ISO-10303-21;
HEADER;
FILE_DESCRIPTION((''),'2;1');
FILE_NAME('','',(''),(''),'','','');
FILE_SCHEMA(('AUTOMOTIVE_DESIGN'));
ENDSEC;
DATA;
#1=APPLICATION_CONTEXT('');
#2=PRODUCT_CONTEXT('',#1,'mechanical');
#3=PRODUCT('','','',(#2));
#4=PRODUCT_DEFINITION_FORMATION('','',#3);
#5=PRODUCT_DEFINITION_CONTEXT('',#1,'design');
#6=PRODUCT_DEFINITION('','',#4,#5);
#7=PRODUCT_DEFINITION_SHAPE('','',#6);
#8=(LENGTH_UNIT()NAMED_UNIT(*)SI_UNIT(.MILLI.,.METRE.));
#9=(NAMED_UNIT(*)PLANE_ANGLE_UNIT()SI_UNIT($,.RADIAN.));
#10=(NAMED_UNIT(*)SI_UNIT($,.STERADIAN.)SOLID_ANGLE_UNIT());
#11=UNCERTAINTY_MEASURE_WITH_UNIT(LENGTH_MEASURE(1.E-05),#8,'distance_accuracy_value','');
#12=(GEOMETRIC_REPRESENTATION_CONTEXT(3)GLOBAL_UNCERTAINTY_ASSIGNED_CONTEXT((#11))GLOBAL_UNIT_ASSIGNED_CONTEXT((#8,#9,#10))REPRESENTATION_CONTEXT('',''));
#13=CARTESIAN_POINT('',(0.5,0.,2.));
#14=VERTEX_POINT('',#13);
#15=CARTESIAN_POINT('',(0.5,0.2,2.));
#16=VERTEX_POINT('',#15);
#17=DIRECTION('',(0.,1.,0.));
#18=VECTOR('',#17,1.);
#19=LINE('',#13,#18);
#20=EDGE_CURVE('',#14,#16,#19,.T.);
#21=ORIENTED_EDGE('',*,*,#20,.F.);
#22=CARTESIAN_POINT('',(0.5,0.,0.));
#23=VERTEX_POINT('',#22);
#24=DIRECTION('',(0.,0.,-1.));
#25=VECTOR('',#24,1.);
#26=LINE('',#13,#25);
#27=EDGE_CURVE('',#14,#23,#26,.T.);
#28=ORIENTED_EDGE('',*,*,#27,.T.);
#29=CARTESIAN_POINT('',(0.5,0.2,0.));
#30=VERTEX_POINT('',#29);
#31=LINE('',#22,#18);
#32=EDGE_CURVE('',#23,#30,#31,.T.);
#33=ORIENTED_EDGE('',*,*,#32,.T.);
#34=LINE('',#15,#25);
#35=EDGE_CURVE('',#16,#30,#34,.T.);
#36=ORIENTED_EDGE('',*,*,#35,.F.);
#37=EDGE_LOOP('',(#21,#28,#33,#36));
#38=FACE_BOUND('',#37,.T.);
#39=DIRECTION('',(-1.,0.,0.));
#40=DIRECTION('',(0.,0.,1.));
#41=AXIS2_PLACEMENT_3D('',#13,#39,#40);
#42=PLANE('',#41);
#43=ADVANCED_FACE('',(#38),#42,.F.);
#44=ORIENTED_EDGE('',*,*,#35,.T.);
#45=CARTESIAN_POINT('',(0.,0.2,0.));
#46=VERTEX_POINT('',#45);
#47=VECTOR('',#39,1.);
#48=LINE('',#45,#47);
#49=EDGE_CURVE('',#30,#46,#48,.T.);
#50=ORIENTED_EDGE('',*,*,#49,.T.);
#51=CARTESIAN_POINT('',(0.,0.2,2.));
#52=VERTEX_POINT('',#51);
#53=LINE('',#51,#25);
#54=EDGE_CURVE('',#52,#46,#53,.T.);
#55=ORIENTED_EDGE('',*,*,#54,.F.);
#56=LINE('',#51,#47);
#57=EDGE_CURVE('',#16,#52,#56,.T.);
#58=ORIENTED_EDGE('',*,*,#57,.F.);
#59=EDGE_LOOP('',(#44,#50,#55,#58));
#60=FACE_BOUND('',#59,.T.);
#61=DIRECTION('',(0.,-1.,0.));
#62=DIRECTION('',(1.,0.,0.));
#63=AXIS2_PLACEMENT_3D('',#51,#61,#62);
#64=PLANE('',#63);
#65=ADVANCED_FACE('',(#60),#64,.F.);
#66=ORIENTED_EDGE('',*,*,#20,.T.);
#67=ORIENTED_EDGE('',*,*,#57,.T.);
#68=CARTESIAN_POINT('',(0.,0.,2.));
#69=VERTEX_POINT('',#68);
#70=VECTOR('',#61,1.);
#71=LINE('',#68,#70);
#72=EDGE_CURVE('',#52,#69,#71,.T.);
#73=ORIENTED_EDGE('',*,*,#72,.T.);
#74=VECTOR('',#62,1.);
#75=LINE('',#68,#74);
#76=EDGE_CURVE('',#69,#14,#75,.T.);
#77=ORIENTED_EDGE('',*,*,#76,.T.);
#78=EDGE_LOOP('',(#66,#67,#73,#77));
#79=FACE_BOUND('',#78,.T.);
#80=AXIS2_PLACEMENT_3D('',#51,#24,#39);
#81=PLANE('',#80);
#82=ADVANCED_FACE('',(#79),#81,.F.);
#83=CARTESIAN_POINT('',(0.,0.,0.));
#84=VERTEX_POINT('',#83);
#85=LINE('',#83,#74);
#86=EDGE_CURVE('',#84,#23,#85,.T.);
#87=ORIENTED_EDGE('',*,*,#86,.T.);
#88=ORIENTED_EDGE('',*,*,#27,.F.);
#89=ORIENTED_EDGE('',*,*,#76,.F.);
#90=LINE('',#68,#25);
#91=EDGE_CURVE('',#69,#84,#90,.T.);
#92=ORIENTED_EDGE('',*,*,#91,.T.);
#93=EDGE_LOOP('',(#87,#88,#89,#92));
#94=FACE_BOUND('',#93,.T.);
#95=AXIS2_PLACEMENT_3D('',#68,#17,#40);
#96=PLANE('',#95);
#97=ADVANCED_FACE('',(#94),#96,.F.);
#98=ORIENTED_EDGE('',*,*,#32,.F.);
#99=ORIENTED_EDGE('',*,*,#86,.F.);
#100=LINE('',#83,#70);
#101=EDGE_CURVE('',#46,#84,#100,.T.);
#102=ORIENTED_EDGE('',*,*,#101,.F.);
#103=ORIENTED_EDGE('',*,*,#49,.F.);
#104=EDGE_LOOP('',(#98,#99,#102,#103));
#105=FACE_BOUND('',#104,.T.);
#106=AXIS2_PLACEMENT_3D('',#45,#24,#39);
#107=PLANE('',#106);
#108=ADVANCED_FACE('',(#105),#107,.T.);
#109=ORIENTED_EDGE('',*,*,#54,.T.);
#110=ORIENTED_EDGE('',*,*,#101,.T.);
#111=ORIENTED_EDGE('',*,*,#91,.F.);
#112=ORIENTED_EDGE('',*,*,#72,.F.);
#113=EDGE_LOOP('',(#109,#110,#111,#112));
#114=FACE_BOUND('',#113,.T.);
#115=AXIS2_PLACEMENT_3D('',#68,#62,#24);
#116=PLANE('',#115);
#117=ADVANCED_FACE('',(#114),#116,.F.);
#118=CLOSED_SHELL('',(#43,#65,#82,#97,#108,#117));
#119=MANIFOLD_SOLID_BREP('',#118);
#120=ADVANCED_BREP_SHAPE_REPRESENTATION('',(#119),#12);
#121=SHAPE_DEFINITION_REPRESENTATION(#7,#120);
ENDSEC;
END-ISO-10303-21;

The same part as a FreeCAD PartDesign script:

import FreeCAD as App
import Part
import Sketcher
from FreeCAD import Vector


def add_polygon(sketch, points):
    """Adds a closed chain of lines whose ends are joined by coincident constraints."""
    first, n = sketch.GeometryCount, len(points)
    for a, b in zip(points, points[1:] + points[:1]):
        sketch.addGeometry(Part.LineSegment(App.Vector(*a, 0), App.Vector(*b, 0)), False)
    for i in range(n):
        sketch.addConstraint(Sketcher.Constraint("Coincident", first + i, 2, first + (i + 1) % n, 1))

doc = App.newDocument("Part")
params = doc.addObject("Spreadsheet::Sheet", "Params")
for row, (alias, value) in enumerate([
    ("sketch1_width", "0.5 mm"),
    ("sketch1_height", "0.2 mm"),
    ("pad1_length", "2 mm"),
], start=1):
    params.set(f"A{row}", alias)
    params.set(f"B{row}", "=" + value)
    params.setAlias(f"B{row}", alias)

body = doc.addObject("PartDesign::Body", "Body")

# Sketch on XY plane
sketch1 = body.newObject("Sketcher::SketchObject", "Sketch")
sketch1.AttachmentSupport = (doc.getObject("XY_Plane"), [""])
sketch1.MapMode = "FlatFace"
add_polygon(sketch1, [(0, 0.2), (0, 0), (0.5, 0), (0.5, 0.2)])  # lines 0-3
sketch1.addConstraint([
    Sketcher.Constraint("Vertical", 0),
    Sketcher.Constraint("Horizontal", 1),
    Sketcher.Constraint("Vertical", 2),
    Sketcher.Constraint("Horizontal", 3),
    Sketcher.Constraint("Coincident", 0, 2, -1, 1),
    Sketcher.Constraint("DistanceX", 1, 1, 1, 2, 0.5),
    Sketcher.Constraint("DistanceY", 0, 2, 0, 1, 0.2),
])
sketch1.setExpression("Constraints[9]", "Params.sketch1_width")
sketch1.setExpression("Constraints[10]", "Params.sketch1_height")
pad1 = body.newObject("PartDesign::Pad", "Pad")
pad1.Profile = sketch1
pad1.setExpression("Length", "Params.pad1_length")

doc.recompute()
